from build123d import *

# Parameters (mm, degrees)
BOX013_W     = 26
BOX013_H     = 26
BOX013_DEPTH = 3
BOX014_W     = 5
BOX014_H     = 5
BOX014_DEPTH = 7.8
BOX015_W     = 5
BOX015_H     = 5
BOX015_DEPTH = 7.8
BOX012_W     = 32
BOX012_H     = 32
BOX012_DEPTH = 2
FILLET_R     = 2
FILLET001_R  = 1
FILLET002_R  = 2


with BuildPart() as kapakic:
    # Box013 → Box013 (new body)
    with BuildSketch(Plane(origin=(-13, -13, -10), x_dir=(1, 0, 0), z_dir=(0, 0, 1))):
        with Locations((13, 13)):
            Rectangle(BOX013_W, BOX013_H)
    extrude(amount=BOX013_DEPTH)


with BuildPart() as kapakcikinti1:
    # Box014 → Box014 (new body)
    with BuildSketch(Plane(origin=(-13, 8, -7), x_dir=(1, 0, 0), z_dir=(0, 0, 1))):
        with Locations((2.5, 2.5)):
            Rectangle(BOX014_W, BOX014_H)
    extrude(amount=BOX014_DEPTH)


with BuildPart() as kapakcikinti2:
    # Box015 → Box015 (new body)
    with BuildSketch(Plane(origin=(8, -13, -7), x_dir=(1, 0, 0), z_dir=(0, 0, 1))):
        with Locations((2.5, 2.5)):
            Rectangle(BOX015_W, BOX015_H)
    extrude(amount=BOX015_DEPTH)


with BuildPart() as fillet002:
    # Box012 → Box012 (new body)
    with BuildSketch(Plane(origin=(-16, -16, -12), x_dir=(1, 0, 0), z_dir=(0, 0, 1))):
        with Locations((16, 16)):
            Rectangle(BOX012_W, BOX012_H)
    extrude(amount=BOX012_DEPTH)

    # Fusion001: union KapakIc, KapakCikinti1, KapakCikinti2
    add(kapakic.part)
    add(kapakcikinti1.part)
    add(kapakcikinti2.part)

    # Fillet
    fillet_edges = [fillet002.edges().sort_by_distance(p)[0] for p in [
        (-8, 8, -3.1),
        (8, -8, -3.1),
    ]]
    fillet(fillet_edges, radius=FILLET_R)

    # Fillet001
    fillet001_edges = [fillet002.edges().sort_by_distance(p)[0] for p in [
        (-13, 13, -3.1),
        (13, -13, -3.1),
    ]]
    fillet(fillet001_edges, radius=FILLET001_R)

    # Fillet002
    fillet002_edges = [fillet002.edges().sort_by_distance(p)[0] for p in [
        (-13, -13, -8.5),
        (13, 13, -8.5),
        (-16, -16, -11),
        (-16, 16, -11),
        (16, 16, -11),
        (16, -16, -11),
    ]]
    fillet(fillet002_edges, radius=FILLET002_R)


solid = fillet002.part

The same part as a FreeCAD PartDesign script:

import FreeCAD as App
import Part
import Sketcher

V = App.Vector
Q = App.Units.Quantity


def edges_at(feature, points):
    """Names of the edges that pass closest to the given points."""
    edges = feature.Shape.Edges
    near = lambda p: min(range(len(edges)), key=lambda i: edges[i].distToShape(Part.Vertex(*p))[0])
    return sorted({f"Edge{near(p) + 1}" for p in points})


def add_polygon(sketch, points):
    """Adds a closed chain of lines whose ends are joined by coincident constraints."""
    first, n = sketch.GeometryCount, len(points)
    for a, b in zip(points, points[1:] + points[:1]):
        sketch.addGeometry(Part.LineSegment(App.Vector(*a, 0), App.Vector(*b, 0)), False)
    for i in range(n):
        sketch.addConstraint(Sketcher.Constraint("Coincident", first + i, 2, first + (i + 1) % n, 1))

doc = App.newDocument("Part")
body = doc.addObject("PartDesign::Body", "Body")

# Sketch on XY plane
sketch1 = doc.addObject("Sketcher::SketchObject", "Sketch")
body.addObject(sketch1)
sketch1.AttachmentSupport = (doc.XY_Plane, [""])
sketch1.MapMode = "FlatFace"
sketch1.AttachmentOffset = App.Placement(V(0, 0, -10), App.Rotation())
add_polygon(sketch1, [(-13, 13), (-13, -13), (13, -13), (13, 13)])  # lines 0-3
sketch1.addConstraint([
    Sketcher.Constraint("Vertical", 0),
    Sketcher.Constraint("Horizontal", 1),
    Sketcher.Constraint("Vertical", 2),
    Sketcher.Constraint("Horizontal", 3),
    Sketcher.Constraint("Symmetric", 0, 2, 2, 2, -1, 1),
    Sketcher.Constraint("Equal", 3, 0),
    Sketcher.Constraint("DistanceX", 1, 1, 1, 2, Q("26 mm")),
])
pad1 = doc.addObject("PartDesign::Pad", "Pad")
body.addObject(pad1)
pad1.Profile = sketch1
pad1.Length = 3
body2 = doc.addObject("PartDesign::Body", "Body001")

# Sketch on XY plane
sketch2 = doc.addObject("Sketcher::SketchObject", "Sketch001")
body2.addObject(sketch2)
sketch2.AttachmentSupport = (doc.getObject("XY_Plane001"), [""])
sketch2.MapMode = "FlatFace"
sketch2.AttachmentOffset = App.Placement(V(0, 0, -7), App.Rotation())
add_polygon(sketch2, [(-13, 13), (-13, 8), (-8, 8), (-8, 13)])  # lines 0-3
sketch2.addConstraint([
    Sketcher.Constraint("Vertical", 0),
    Sketcher.Constraint("Horizontal", 1),
    Sketcher.Constraint("Vertical", 2),
    Sketcher.Constraint("Horizontal", 3),
    Sketcher.Constraint("Equal", 3, 0),
    Sketcher.Constraint("DistanceX", 1, 1, 1, 2, Q("5 mm")),
    Sketcher.Constraint("DistanceX", 0, 2, -1, 1, Q("13 mm")),
    Sketcher.Constraint("DistanceY", -1, 1, 0, 2, Q("8 mm")),
])
pad2 = doc.addObject("PartDesign::Pad", "Pad001")
body2.addObject(pad2)
pad2.Profile = sketch2
pad2.Length = 7.8
body3 = doc.addObject("PartDesign::Body", "Body002")

# Sketch on XY plane
sketch3 = doc.addObject("Sketcher::SketchObject", "Sketch002")
body3.addObject(sketch3)
sketch3.AttachmentSupport = (doc.getObject("XY_Plane002"), [""])
sketch3.MapMode = "FlatFace"
sketch3.AttachmentOffset = App.Placement(V(0, 0, -7), App.Rotation())
add_polygon(sketch3, [(8, -8), (8, -13), (13, -13), (13, -8)])  # lines 0-3
sketch3.addConstraint([
    Sketcher.Constraint("Vertical", 0),
    Sketcher.Constraint("Horizontal", 1),
    Sketcher.Constraint("Vertical", 2),
    Sketcher.Constraint("Horizontal", 3),
    Sketcher.Constraint("Equal", 3, 0),
    Sketcher.Constraint("DistanceX", 1, 1, 1, 2, Q("5 mm")),
    Sketcher.Constraint("DistanceX", -1, 1, 0, 2, Q("8 mm")),
    Sketcher.Constraint("DistanceY", 0, 2, -1, 1, Q("13 mm")),
])
pad3 = doc.addObject("PartDesign::Pad", "Pad002")
body3.addObject(pad3)
pad3.Profile = sketch3
pad3.Length = 7.8
body4 = doc.addObject("PartDesign::Body", "Body003")

# Sketch on XY plane
sketch4 = doc.addObject("Sketcher::SketchObject", "Sketch003")
body4.addObject(sketch4)
sketch4.AttachmentSupport = (doc.getObject("XY_Plane003"), [""])
sketch4.MapMode = "FlatFace"
sketch4.AttachmentOffset = App.Placement(V(0, 0, -12), App.Rotation())
add_polygon(sketch4, [(-16, 16), (-16, -16), (16, -16), (16, 16)])  # lines 0-3
sketch4.addConstraint([
    Sketcher.Constraint("Vertical", 0),
    Sketcher.Constraint("Horizontal", 1),
    Sketcher.Constraint("Vertical", 2),
    Sketcher.Constraint("Horizontal", 3),
    Sketcher.Constraint("Symmetric", 0, 2, 2, 2, -1, 1),
    Sketcher.Constraint("Equal", 3, 0),
    Sketcher.Constraint("DistanceX", 1, 1, 1, 2, Q("32 mm")),
])
pad4 = doc.addObject("PartDesign::Pad", "Pad003")
body4.addObject(pad4)
pad4.Profile = sketch4
pad4.Length = 2
doc.recompute()

boolean = doc.addObject("PartDesign::Boolean", "Boolean")
body4.addObject(boolean)
boolean.Type = "Fuse"
boolean.addObjects([body])
doc.recompute()

boolean2 = doc.addObject("PartDesign::Boolean", "Boolean001")
body4.addObject(boolean2)
boolean2.Type = "Fuse"
boolean2.addObjects([body2])
doc.recompute()

boolean3 = doc.addObject("PartDesign::Boolean", "Boolean002")
body4.addObject(boolean3)
boolean3.Type = "Fuse"
boolean3.addObjects([body3])
doc.recompute()

fillet = doc.addObject("PartDesign::Fillet", "Fillet")
body4.addObject(fillet)
fillet.Base = (boolean3, edges_at(boolean3, [(-8, 8, -3.1), (8, -8, -3.1)]))
fillet.Radius = 2
doc.recompute()

fillet2 = doc.addObject("PartDesign::Fillet", "Fillet001")
body4.addObject(fillet2)
fillet2.Base = (fillet, edges_at(fillet, [(-13, 13, -4.6), (13, -13, -4.6)]))
fillet2.Radius = 1
doc.recompute()

fillet3 = doc.addObject("PartDesign::Fillet", "Fillet002")
body4.addObject(fillet3)
fillet3.Base = (fillet2, edges_at(fillet2, [
    (-13, -13, -8.5),
    (13, 13, -8.5),
    (-16, -16, -11),
    (-16, 16, -11),
    (16, 16, -11),
    (16, -16, -11),
]))
fillet3.Radius = 2

doc.recompute()
